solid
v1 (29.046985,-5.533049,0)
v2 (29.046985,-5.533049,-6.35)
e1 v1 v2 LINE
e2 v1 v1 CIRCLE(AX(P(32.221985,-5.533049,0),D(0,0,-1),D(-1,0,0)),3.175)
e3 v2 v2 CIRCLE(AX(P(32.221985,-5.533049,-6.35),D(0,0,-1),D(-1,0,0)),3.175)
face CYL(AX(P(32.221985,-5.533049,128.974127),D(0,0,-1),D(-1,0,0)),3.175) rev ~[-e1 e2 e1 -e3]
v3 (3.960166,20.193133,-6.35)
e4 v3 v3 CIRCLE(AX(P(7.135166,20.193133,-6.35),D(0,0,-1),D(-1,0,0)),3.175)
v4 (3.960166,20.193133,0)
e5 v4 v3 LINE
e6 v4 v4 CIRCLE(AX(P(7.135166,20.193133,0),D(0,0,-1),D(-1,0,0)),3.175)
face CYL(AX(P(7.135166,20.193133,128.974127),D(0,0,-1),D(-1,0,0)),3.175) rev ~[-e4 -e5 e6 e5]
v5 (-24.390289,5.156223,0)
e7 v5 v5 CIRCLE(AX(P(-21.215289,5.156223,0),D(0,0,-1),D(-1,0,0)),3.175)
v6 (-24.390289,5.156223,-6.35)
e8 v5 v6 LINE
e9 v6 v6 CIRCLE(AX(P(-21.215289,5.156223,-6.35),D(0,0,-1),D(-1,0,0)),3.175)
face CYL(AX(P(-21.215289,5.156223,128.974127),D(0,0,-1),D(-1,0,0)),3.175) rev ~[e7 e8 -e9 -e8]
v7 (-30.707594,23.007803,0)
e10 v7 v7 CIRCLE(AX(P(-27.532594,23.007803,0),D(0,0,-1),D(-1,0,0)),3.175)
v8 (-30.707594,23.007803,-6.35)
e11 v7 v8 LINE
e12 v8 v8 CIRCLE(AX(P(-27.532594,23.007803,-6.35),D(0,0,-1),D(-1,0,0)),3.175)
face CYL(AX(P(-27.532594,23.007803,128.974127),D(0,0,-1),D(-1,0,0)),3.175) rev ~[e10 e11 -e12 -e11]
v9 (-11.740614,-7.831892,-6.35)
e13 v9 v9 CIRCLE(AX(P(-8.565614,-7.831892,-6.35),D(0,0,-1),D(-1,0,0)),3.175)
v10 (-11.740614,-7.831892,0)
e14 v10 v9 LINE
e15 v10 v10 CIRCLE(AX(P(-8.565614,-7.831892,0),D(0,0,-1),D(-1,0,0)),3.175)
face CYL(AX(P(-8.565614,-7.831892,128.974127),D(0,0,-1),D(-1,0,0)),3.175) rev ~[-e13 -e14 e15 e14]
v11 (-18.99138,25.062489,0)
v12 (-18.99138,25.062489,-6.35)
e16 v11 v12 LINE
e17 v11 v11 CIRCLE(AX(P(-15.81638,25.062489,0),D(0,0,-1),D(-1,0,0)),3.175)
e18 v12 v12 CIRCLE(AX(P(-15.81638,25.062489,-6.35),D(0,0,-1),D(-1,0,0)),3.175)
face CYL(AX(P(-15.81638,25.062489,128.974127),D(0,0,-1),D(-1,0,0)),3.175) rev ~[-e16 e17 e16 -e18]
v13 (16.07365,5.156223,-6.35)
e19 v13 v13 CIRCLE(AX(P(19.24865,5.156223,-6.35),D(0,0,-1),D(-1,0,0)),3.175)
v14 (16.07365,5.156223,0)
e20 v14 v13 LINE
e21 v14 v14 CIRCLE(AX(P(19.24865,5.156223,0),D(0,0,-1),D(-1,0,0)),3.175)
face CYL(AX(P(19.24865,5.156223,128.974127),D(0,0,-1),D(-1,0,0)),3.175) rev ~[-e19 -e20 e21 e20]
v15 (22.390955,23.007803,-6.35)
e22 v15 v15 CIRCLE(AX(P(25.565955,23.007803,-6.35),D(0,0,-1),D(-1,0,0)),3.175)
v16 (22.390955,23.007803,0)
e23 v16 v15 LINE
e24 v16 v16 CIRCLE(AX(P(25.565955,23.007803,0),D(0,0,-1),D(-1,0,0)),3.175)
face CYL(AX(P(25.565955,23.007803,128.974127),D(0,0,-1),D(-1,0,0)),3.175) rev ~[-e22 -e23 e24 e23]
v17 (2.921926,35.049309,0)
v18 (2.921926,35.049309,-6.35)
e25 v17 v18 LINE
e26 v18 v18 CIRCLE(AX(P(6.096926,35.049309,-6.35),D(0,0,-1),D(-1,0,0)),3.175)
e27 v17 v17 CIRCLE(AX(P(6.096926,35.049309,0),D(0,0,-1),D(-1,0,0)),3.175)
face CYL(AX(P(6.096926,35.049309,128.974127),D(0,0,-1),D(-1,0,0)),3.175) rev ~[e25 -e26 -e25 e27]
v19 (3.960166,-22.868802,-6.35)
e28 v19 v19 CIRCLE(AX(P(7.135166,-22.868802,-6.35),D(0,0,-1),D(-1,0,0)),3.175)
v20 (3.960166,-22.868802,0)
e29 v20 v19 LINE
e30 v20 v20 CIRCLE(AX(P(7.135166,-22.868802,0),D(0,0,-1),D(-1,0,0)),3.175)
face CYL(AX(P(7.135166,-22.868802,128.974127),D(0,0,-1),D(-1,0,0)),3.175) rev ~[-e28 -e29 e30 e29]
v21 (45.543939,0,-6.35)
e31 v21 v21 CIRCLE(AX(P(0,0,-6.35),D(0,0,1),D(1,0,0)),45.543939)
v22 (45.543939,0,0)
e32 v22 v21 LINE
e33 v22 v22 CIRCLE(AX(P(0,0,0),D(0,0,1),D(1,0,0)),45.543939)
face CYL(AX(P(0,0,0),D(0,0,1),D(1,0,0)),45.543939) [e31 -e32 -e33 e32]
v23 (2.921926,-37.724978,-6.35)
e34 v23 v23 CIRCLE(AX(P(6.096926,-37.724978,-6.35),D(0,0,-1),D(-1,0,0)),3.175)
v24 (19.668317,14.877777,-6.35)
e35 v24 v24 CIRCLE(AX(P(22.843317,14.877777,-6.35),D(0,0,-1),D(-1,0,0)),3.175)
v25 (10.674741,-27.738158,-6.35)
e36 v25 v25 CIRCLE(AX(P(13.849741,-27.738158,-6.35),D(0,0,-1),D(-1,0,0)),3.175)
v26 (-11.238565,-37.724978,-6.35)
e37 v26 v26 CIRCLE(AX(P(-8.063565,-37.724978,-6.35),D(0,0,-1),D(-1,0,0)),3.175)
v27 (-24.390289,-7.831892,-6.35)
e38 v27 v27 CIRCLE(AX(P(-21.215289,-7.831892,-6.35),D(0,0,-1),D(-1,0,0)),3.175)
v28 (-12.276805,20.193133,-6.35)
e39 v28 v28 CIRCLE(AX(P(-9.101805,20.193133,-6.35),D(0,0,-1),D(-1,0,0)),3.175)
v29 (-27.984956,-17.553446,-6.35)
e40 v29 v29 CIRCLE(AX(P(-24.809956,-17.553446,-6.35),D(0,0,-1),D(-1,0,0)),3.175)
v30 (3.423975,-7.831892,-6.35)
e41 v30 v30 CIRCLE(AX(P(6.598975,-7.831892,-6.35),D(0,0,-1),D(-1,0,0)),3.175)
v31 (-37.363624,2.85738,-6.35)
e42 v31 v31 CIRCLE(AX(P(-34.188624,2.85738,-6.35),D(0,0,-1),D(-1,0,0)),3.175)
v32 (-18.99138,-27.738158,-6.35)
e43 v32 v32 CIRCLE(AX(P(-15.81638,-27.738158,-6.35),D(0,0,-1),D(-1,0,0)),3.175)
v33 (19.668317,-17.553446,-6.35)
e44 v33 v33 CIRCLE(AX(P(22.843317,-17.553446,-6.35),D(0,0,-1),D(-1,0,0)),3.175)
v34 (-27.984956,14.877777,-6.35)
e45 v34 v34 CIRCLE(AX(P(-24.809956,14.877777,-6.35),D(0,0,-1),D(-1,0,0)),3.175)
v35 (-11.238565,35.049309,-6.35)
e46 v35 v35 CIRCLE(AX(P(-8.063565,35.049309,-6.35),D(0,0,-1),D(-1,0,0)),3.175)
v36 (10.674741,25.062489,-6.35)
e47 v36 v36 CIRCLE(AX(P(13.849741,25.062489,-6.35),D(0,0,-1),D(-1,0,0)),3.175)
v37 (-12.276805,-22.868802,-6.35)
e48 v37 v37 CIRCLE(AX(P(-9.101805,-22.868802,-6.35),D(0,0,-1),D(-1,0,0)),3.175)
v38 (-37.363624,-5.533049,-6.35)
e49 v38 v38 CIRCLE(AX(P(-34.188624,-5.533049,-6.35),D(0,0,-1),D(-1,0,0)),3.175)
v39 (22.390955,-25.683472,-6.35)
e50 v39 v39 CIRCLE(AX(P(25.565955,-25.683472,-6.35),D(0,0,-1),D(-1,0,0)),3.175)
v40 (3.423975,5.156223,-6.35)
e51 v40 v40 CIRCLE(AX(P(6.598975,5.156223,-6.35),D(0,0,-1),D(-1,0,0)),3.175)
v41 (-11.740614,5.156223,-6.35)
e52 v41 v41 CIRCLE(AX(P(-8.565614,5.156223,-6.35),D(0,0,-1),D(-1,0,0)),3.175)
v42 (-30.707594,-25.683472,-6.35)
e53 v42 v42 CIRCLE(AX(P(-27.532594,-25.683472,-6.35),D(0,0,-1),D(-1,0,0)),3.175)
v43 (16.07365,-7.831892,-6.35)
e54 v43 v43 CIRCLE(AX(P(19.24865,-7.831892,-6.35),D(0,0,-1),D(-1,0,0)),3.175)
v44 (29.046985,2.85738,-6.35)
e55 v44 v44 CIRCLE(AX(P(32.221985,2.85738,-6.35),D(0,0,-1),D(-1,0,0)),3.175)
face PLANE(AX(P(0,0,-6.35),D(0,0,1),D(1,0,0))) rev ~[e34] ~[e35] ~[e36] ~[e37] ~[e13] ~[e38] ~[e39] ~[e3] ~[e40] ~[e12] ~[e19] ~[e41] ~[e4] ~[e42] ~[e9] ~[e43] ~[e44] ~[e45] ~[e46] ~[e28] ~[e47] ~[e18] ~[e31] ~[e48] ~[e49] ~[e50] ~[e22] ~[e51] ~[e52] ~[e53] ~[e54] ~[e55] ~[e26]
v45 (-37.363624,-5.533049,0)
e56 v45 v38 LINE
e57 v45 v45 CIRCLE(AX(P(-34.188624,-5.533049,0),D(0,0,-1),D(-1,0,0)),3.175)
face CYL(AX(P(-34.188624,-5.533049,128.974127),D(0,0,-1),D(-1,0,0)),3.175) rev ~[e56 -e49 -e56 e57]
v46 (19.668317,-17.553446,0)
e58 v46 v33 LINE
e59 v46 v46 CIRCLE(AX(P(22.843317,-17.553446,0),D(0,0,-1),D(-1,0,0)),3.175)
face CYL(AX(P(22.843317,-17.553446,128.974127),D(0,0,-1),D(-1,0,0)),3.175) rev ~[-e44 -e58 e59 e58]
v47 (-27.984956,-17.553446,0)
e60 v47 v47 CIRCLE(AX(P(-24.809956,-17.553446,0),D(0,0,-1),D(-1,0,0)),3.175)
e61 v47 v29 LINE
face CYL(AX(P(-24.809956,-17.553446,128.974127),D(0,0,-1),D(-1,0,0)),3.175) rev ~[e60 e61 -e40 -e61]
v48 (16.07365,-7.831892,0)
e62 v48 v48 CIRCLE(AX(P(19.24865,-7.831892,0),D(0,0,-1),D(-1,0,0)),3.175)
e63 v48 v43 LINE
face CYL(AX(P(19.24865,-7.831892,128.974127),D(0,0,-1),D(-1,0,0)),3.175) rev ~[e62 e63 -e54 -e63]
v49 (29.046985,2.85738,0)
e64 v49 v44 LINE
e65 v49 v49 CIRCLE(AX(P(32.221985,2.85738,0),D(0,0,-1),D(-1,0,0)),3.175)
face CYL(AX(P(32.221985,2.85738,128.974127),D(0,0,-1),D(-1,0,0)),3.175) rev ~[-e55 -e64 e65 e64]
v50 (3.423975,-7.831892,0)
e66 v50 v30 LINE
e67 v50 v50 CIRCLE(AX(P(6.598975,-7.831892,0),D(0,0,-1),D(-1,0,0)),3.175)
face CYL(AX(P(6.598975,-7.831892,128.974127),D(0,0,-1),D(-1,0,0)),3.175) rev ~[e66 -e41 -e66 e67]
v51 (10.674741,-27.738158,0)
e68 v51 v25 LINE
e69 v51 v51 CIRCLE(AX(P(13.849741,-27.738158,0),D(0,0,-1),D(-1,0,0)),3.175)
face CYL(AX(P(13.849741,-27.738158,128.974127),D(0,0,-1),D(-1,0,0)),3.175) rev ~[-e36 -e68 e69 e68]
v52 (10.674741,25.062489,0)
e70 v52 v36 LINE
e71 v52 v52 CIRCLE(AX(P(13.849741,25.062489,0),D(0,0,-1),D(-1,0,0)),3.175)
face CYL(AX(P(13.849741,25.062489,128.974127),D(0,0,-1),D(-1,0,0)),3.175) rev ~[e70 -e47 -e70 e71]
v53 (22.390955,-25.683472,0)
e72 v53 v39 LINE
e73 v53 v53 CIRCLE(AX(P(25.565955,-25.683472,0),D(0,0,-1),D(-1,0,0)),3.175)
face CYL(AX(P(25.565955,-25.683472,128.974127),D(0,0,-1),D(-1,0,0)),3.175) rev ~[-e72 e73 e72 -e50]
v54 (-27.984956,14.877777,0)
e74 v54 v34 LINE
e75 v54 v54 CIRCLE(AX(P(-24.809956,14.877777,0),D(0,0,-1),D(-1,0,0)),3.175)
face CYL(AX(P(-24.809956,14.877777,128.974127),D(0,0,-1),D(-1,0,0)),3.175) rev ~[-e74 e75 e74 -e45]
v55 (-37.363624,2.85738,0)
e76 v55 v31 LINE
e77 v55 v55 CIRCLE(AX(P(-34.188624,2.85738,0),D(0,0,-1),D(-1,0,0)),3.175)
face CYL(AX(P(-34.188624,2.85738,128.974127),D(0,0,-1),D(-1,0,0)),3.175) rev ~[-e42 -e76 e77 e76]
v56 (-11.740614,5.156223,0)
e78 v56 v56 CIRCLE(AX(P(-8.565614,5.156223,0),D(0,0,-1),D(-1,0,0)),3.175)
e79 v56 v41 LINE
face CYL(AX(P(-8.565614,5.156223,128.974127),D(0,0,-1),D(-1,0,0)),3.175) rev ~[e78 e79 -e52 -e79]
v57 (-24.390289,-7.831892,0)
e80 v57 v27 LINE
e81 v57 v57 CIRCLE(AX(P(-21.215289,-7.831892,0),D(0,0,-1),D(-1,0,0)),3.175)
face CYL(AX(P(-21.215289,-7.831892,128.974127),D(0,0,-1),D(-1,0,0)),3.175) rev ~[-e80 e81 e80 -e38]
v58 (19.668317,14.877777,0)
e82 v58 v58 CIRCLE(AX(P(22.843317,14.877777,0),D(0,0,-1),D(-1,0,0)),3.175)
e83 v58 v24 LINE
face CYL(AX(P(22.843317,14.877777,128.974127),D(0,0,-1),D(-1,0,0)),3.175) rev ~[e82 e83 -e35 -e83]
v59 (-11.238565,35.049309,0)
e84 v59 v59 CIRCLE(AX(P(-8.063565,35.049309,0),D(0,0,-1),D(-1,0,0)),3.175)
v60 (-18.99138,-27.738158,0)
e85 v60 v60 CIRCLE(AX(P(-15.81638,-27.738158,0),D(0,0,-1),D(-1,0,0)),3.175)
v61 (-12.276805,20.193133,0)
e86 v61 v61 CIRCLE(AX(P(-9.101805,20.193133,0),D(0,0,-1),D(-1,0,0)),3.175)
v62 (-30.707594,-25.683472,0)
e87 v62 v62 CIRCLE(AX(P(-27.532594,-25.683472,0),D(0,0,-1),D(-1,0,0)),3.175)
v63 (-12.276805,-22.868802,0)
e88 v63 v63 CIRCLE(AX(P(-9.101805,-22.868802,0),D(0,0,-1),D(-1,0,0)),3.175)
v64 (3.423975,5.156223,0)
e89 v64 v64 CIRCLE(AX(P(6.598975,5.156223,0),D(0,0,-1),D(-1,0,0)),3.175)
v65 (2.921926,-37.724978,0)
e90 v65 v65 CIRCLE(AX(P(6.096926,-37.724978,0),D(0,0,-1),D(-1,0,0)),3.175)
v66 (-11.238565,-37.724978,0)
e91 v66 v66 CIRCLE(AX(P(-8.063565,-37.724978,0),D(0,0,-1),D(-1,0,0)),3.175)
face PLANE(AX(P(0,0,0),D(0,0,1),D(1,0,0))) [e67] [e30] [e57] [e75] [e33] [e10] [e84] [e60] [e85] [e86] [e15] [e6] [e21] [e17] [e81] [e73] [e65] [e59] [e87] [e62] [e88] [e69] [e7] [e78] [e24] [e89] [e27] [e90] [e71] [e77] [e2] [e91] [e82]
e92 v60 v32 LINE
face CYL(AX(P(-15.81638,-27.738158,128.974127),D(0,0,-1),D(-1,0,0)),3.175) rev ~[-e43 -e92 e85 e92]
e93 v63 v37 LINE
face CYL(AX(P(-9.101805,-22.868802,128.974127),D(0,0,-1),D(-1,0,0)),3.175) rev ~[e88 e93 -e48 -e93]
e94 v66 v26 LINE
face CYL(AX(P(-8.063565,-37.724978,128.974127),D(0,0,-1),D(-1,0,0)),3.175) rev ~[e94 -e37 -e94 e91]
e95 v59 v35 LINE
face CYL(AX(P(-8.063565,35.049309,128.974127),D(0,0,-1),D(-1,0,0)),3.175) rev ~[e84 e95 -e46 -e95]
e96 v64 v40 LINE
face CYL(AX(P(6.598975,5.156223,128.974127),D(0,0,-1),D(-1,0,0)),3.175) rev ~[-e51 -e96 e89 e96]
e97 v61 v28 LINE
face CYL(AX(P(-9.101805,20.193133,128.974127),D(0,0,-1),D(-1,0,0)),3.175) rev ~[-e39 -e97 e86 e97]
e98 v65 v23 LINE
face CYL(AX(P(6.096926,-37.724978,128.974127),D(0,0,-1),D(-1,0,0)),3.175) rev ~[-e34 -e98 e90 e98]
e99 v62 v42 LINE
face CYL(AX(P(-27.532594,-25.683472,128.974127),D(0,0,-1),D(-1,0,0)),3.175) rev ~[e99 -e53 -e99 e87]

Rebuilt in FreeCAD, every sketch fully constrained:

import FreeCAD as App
import Part
import Sketcher
from FreeCAD import Vector
Q = App.Units.Quantity

doc = App.newDocument("Part")
params = doc.addObject("Spreadsheet::Sheet", "Params")
for row, (alias, value) in enumerate([
    ("pad1_length", "0.25 in"),
    ("sketch2_diameter", "0.25 in"),
    ("hole_diameter", "0.25 in"),
], start=1):
    params.set(f"A{row}", alias)
    params.set(f"B{row}", "=" + value)
    params.setAlias(f"B{row}", alias)

body = doc.addObject("PartDesign::Body", "Body")

sketch1 = body.newObject("Sketcher::SketchObject", "Sketch")
sketch1.AttachmentSupport = (doc.getObject("XY_Plane"), [""])
sketch1.MapMode = "FlatFace"
sketch1.addGeometry(Part.Circle(Vector(0, 0, 0), Vector(0, 0, 1), 46), False)
sketch1.addConstraint([
    Sketcher.Constraint("Coincident", 0, 3, -1, 1),
    Sketcher.Constraint("Diameter", 0, 91.087878),
])
pad1 = body.newObject("PartDesign::Pad", "Pad")
pad1.Profile = sketch1
pad1.setExpression("Length", "Params.pad1_length")
pad1.Reversed = True

sketch2 = body.newObject("Sketcher::SketchObject", "Sketch001")
sketch2.AttachmentSupport = (doc.getObject("XY_Plane"), [""])
sketch2.MapMode = "FlatFace"
sketch2.addGeometry([
    Part.Circle(Vector(-9.1, -22.9, 0), Vector(0, 0, 1), 3.2),
    Part.Circle(Vector(-15.8, -27.7, 0), Vector(0, 0, 1), 3.2),
    Part.Circle(Vector(-27.5, -25.7, 0), Vector(0, 0, 1), 3.2),
    Part.Circle(Vector(-24.8, -17.6, 0), Vector(0, 0, 1), 3.2),
    Part.Circle(Vector(-8.6, -7.8, 0), Vector(0, 0, 1), 3.2),
    Part.Circle(Vector(-21.2, -7.8, 0), Vector(0, 0, 1), 3.2),
    Part.Circle(Vector(13.8, -27.7, 0), Vector(0, 0, 1), 3.2),
    Part.Circle(Vector(25.6, -25.7, 0), Vector(0, 0, 1), 3.2),
    Part.Circle(Vector(22.8, -17.6, 0), Vector(0, 0, 1), 3.2),
    Part.Circle(Vector(7.1, -22.9, 0), Vector(0, 0, 1), 3.2),
    Part.Circle(Vector(6.1, -37.7, 0), Vector(0, 0, 1), 3.2),
    Part.Circle(Vector(-8.1, -37.7, 0), Vector(0, 0, 1), 3.2),
    Part.Circle(Vector(6.6, -7.8, 0), Vector(0, 0, 1), 3.2),
    Part.Circle(Vector(19.2, -7.8, 0), Vector(0, 0, 1), 3.2),
    Part.Circle(Vector(32.2, -5.5, 0), Vector(0, 0, 1), 3.2),
    Part.Circle(Vector(32.2, 2.9, 0), Vector(0, 0, 1), 3.2),
    Part.Circle(Vector(19.2, 5.2, 0), Vector(0, 0, 1), 3.2),
    Part.Circle(Vector(6.6, 5.2, 0), Vector(0, 0, 1), 3.2),
    Part.Circle(Vector(7.1, 20.2, 0), Vector(0, 0, 1), 3.2),
    Part.Circle(Vector(13.8, 25.1, 0), Vector(0, 0, 1), 3.2),
    Part.Circle(Vector(25.6, 23, 0), Vector(0, 0, 1), 3.2),
    Part.Circle(Vector(22.8, 14.9, 0), Vector(0, 0, 1), 3.2),
    Part.Circle(Vector(6.1, 35, 0), Vector(0, 0, 1), 3.2),
    Part.Circle(Vector(-8.6, 5.2, 0), Vector(0, 0, 1), 3.2),
    Part.Circle(Vector(-21.2, 5.2, 0), Vector(0, 0, 1), 3.2),
    Part.Circle(Vector(-34.2, 2.9, 0), Vector(0, 0, 1), 3.2),
    Part.Circle(Vector(-34.2, -5.5, 0), Vector(0, 0, 1), 3.2),
    Part.Circle(Vector(-9.1, 20.2, 0), Vector(0, 0, 1), 3.2),
    Part.Circle(Vector(-24.8, 14.9, 0), Vector(0, 0, 1), 3.2),
    Part.Circle(Vector(-15.8, 25.1, 0), Vector(0, 0, 1), 3.2),
    Part.Circle(Vector(-27.5, 23, 0), Vector(0, 0, 1), 3.2),
    Part.Circle(Vector(-8.1, 35, 0), Vector(0, 0, 1), 3.2),
], False)
sketch2.addConstraint([
    Sketcher.Constraint("Equal", 0, 1),
    Sketcher.Constraint("Equal", 1, 2),
    Sketcher.Constraint("Equal", 2, 3),
    Sketcher.Constraint("Equal", 3, 4),
    Sketcher.Constraint("Equal", 4, 5),
    Sketcher.Constraint("Equal", 5, 6),
    Sketcher.Constraint("Equal", 6, 7),
    Sketcher.Constraint("Equal", 7, 8),
    Sketcher.Constraint("Equal", 8, 9),
    Sketcher.Constraint("Equal", 9, 10),
    Sketcher.Constraint("Equal", 10, 11),
    Sketcher.Constraint("Equal", 11, 12),
    Sketcher.Constraint("Equal", 12, 13),
    Sketcher.Constraint("Equal", 13, 14),
    Sketcher.Constraint("Equal", 14, 15),
    Sketcher.Constraint("Equal", 15, 16),
    Sketcher.Constraint("Equal", 16, 17),
    Sketcher.Constraint("Equal", 17, 18),
    Sketcher.Constraint("Equal", 18, 19),
    Sketcher.Constraint("Equal", 19, 20),
    Sketcher.Constraint("Equal", 20, 21),
    Sketcher.Constraint("Equal", 21, 22),
    Sketcher.Constraint("Equal", 22, 23),
    Sketcher.Constraint("Equal", 23, 24),
    Sketcher.Constraint("Equal", 24, 25),
    Sketcher.Constraint("Equal", 25, 26),
    Sketcher.Constraint("Equal", 26, 27),
    Sketcher.Constraint("Equal", 27, 28),
    Sketcher.Constraint("Equal", 28, 29),
    Sketcher.Constraint("Equal", 29, 30),
    Sketcher.Constraint("Equal", 30, 31),
    Sketcher.Constraint("Horizontal", 4, 3, 5, 3),
    Sketcher.Constraint("Horizontal", 1, 3, 6, 3),
    Sketcher.Constraint("Horizontal", 2, 3, 7, 3),
    Sketcher.Constraint("Horizontal", 3, 3, 8, 3),
    Sketcher.Constraint("Horizontal", 0, 3, 9, 3),
    Sketcher.Constraint("Horizontal", 10, 3, 11, 3),
    Sketcher.Constraint("Horizontal", 5, 3, 12, 3),
    Sketcher.Constraint("Horizontal", 12, 3, 13, 3),
    Sketcher.Constraint("Horizontal", 16, 3, 17, 3),
    Sketcher.Constraint("Horizontal", 17, 3, 23, 3),
    Sketcher.Constraint("Horizontal", 23, 3, 24, 3),
    Sketcher.Constraint("Horizontal", 15, 3, 25, 3),
    Sketcher.Constraint("Horizontal", 14, 3, 26, 3),
    Sketcher.Constraint("Horizontal", 18, 3, 27, 3),
    Sketcher.Constraint("Horizontal", 21, 3, 28, 3),
    Sketcher.Constraint("Horizontal", 19, 3, 29, 3),
    Sketcher.Constraint("Horizontal", 20, 3, 30, 3),
    Sketcher.Constraint("Horizontal", 22, 3, 31, 3),
    Sketcher.Constraint("Vertical", 14, 3, 15, 3),
    Sketcher.Constraint("Vertical", 13, 3, 16, 3),
    Sketcher.Constraint("Vertical", 12, 3, 17, 3),
    Sketcher.Constraint("Vertical", 9, 3, 18, 3),
    Sketcher.Constraint("Vertical", 6, 3, 19, 3),
    Sketcher.Constraint("Vertical", 7, 3, 20, 3),
    Sketcher.Constraint("Vertical", 8, 3, 21, 3),
    Sketcher.Constraint("Vertical", 10, 3, 22, 3),
    Sketcher.Constraint("Vertical", 4, 3, 23, 3),
    Sketcher.Constraint("Vertical", 5, 3, 24, 3),
    Sketcher.Constraint("Vertical", 25, 3, 26, 3),
    Sketcher.Constraint("Vertical", 0, 3, 27, 3),
    Sketcher.Constraint("Vertical", 3, 3, 28, 3),
    Sketcher.Constraint("Vertical", 1, 3, 29, 3),
    Sketcher.Constraint("Vertical", 2, 3, 30, 3),
    Sketcher.Constraint("Vertical", 11, 3, 31, 3),
    Sketcher.Constraint("Diameter", 0, Q("0.25 in")),
    Sketcher.Constraint("DistanceY", 0, 3, -1, 1, 22.868802),
    Sketcher.Constraint("DistanceX", 1, 3, -1, 1, 15.81638),
    Sketcher.Constraint("DistanceY", 2, 3, -1, 1, 25.683472),
    Sketcher.Constraint("DistanceX", 5, 3, -1, 1, 21.215289),
    Sketcher.Constraint("DistanceX", -1, 1, 6, 3, 13.849741),
    Sketcher.Constraint("DistanceX", -1, 1, 13, 3, 19.24865),
    Sketcher.Constraint("DistanceY", 14, 3, -1, 1, 5.533049),
    Sketcher.Constraint("DistanceY", -1, 1, 15, 3, 2.85738),
    Sketcher.Constraint("DistanceY", -1, 1, 19, 3, 25.062489),
    Sketcher.Constraint("DistanceY", -1, 1, 22, 3, 35.049309),
    Sketcher.Constraint("DistanceX", 2, 3, 0, 3, 18.430789),
    Sketcher.Constraint("DistanceY", 1, 3, 3, 3, 10.184712),
    Sketcher.Constraint("DistanceX", 3, 3, 0, 3, 15.708151),
    Sketcher.Constraint("DistanceX", 0, 3, 4, 3, 0.536191),
    Sketcher.Constraint("DistanceY", 0, 3, 4, 3, 15.03691),
    Sketcher.Constraint("DistanceX", 0, 3, 7, 3, 34.66776),
    Sketcher.Constraint("DistanceX", 0, 3, 8, 3, 31.945122),
    Sketcher.Constraint("DistanceX", 0, 3, 9, 3, 16.236971),
    Sketcher.Constraint("DistanceY", 10, 3, 6, 3, 9.98682),
    Sketcher.Constraint("DistanceX", 10, 3, 9, 3, 1.03824),
    Sketcher.Constraint("DistanceX", 11, 3, 10, 3, 14.160491),
    Sketcher.Constraint("DistanceX", 12, 3, 9, 3, 0.536191),
    Sketcher.Constraint("DistanceX", 7, 3, 14, 3, 6.65603),
    Sketcher.Constraint("DistanceY", 6, 3, 14, 3, 22.205109),
    Sketcher.Constraint("DistanceY", 14, 3, 16, 3, 10.689272),
    Sketcher.Constraint("DistanceY", 17, 3, 18, 3, 15.03691),
    Sketcher.Constraint("DistanceY", 18, 3, 20, 3, 2.81467),
    Sketcher.Constraint("DistanceY", 21, 3, 19, 3, 10.184712),
    Sketcher.Constraint("DistanceX", 25, 3, 23, 3, 25.62301),
    Sketcher.Constraint("DistanceX", 0, 3, -1, 1, 9.101805),
])
sketch2.setExpression("Constraints[65]", "Params.sketch2_diameter")
doc.recompute()
hole = body.newObject("PartDesign::Hole", "Hole")
hole.Profile = sketch2
hole.ThreadType = "None"
hole.setExpression("Diameter", "Params.hole_diameter")
hole.DepthType = "ThroughAll"

doc.recompute()
